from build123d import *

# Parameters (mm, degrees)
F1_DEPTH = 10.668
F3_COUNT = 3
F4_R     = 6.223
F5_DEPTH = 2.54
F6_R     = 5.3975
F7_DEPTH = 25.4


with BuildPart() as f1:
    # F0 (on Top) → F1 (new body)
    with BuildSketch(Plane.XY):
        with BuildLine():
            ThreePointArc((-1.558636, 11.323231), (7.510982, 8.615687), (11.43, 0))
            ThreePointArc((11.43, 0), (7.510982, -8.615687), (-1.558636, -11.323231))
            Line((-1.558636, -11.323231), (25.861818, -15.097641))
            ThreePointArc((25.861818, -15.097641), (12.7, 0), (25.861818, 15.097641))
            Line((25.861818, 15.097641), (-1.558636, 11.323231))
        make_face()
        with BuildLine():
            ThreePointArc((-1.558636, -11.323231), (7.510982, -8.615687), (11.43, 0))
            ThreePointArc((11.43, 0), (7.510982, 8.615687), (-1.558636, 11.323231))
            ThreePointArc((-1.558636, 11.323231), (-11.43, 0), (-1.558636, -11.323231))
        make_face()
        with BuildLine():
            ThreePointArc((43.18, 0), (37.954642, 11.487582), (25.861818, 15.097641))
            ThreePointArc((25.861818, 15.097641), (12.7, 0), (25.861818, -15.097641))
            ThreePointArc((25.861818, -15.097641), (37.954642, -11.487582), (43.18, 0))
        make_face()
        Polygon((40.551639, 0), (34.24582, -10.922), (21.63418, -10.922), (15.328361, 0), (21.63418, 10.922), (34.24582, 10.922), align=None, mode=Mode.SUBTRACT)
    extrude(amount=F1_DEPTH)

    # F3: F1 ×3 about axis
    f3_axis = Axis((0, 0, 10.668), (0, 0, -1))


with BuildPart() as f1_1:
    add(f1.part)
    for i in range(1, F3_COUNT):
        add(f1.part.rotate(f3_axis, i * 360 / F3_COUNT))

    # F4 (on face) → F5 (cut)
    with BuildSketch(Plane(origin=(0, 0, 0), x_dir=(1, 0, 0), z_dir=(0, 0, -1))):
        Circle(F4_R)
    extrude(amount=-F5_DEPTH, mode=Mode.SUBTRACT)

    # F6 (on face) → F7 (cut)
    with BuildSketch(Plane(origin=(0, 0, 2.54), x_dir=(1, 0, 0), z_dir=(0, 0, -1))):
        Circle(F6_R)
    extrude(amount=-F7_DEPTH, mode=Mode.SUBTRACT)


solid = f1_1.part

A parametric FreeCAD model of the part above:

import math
import FreeCAD as App
import Part
import Sketcher
Q = App.Units.Quantity


def add_polygon(sketch, points):
    """Adds a closed chain of lines whose ends are joined by coincident constraints."""
    first, n = sketch.GeometryCount, len(points)
    for a, b in zip(points, points[1:] + points[:1]):
        sketch.addGeometry(Part.LineSegment(App.Vector(*a, 0), App.Vector(*b, 0)), False)
    for i in range(n):
        sketch.addConstraint(Sketcher.Constraint("Coincident", first + i, 2, first + (i + 1) % n, 1))

doc = App.newDocument("Part")
body = doc.addObject("PartDesign::Body", "Body")

# Sketch on XY plane
sketch1 = doc.addObject("Sketcher::SketchObject", "Sketch")
body.addObject(sketch1)
sketch1.AttachmentSupport = (doc.XY_Plane, [""])
sketch1.MapMode = "FlatFace"
sketch1.addGeometry(Part.LineSegment(App.Vector(-2, -11, 0), App.Vector(26, -15, 0)), False)  # 0
sketch1.addGeometry(Part.ArcOfCircle(Part.Circle(App.Vector(28, 0, 0), App.Vector(0, 0, 1), 15), math.radians(-98), math.radians(0)), False)  # 1
sketch1.addGeometry(Part.ArcOfCircle(Part.Circle(App.Vector(28, 0, 0), App.Vector(0, 0, 1), 15), math.radians(0), math.radians(98)), False)  # 2
sketch1.addGeometry(Part.LineSegment(App.Vector(26, 15, 0), App.Vector(-2, 11, 0)), False)  # 3
sketch1.addGeometry(Part.ArcOfCircle(Part.Circle(App.Vector(0, 0, 0), App.Vector(0, 0, 1), 11), math.radians(98), math.radians(262)), False)  # 4
add_polygon(sketch1, [(34, 11), (41, 0), (34, -11), (22, -11), (15, 0), (22, 11)])  # lines 5-10
sketch1.addConstraint([
    Sketcher.Constraint("Tangent", 0, 2, 1, 1),
    Sketcher.Constraint("Tangent", 1, 2, 2, 1),
    Sketcher.Constraint("Tangent", 2, 2, 3, 1),
    Sketcher.Constraint("Tangent", 3, 2, 4, 1),
    Sketcher.Constraint("Tangent", 4, 2, 0, 1),
    Sketcher.Constraint("Horizontal", 7),
    Sketcher.Constraint("Horizontal", 10),
    Sketcher.Constraint("Coincident", 4, 3, -1, 1),
    Sketcher.Constraint("Equal", 1, 2),
    Sketcher.Constraint("Symmetric", 7, 2, 9, 2, -1),
    Sketcher.Constraint("PointOnObject", 1, 3, -1),
    Sketcher.Constraint("PointOnObject", 1, 2, -1),
    Sketcher.Constraint("PointOnObject", 5, 2, -1),
    Sketcher.Constraint("PointOnObject", 8, 2, -1),
    Sketcher.Constraint("Parallel", 5, 8),
    Sketcher.Constraint("Parallel", 6, 9),
    Sketcher.Constraint("Radius", 1, Q("0.6 in")),
    Sketcher.Constraint("Radius", 4, Q("0.45 in")),
    Sketcher.Constraint("Angle", 5, Q("-60.000003 deg")),
    Sketcher.Constraint("DistanceX", -1, 1, 1, 3, Q("1.1 in")),
    Sketcher.Constraint("DistanceY", 6, 2, -1, 1, Q("0.43 in")),
    Sketcher.Constraint("DistanceX", 7, 2, 7, 1, Q("12.61164 mm")),
    Sketcher.Constraint("DistanceX", 2, 2, 10, 2, Q("8.384002 mm")),
])
pad1 = doc.addObject("PartDesign::Pad", "Pad")
body.addObject(pad1)
pad1.Profile = sketch1
pad1.Length = Q("0.42 in")
body2 = doc.addObject("PartDesign::Body", "Body001")
doc.recompute()

body2.BaseFeature = body
doc.recompute()

body3 = doc.addObject("PartDesign::Body", "Body002")
body3.BaseFeature = body
body3.Placement = App.Placement(App.Vector(0, 0, 0), App.Rotation(App.Vector(0, 0, -1), 120))
boolean = doc.addObject("PartDesign::Boolean", "Boolean")
body2.addObject(boolean)
boolean.Type = "Fuse"
boolean.addObjects([body3])
doc.recompute()

body.Placement = App.Placement(App.Vector(0, 0, 0), App.Rotation(App.Vector(0, 0, -1), 240))
boolean2 = doc.addObject("PartDesign::Boolean", "Boolean001")
body2.addObject(boolean2)
boolean2.Type = "Fuse"
boolean2.addObjects([body])

# Sketch on XY plane
sketch2 = doc.addObject("Sketcher::SketchObject", "Sketch001")
body2.addObject(sketch2)
sketch2.AttachmentSupport = (doc.getObject("XY_Plane001"), [""])
sketch2.MapMode = "FlatFace"
sketch2.addGeometry(Part.Circle(App.Vector(0, 0, 0), App.Vector(0, 0, 1), 6), False)
sketch2.addConstraint([
    Sketcher.Constraint("Coincident", 0, 3, -1, 1),
    Sketcher.Constraint("Diameter", 0, Q("0.49 in")),
])
pocket1 = doc.addObject("PartDesign::Pocket", "Pocket")
body2.addObject(pocket1)
pocket1.Profile = sketch2
pocket1.Length = Q("0.1 in")
pocket1.Reversed = True

# Sketch on XY plane
sketch3 = doc.addObject("Sketcher::SketchObject", "Sketch002")
body2.addObject(sketch3)
sketch3.AttachmentSupport = (doc.getObject("XY_Plane001"), [""])
sketch3.MapMode = "FlatFace"
sketch3.AttachmentOffset = App.Placement(App.Vector(0, 0, 0.1 * 25.4), App.Rotation())
sketch3.addGeometry(Part.Circle(App.Vector(0, 0, 0), App.Vector(0, 0, 1), 5), False)
sketch3.addConstraint([
    Sketcher.Constraint("Coincident", 0, 3, -1, 1),
    Sketcher.Constraint("Diameter", 0, Q("0.425 in")),
])
pocket2 = doc.addObject("PartDesign::Pocket", "Pocket001")
body2.addObject(pocket2)
pocket2.Profile = sketch3
pocket2.Length = Q("1 in")
pocket2.Reversed = True

doc.recompute()
